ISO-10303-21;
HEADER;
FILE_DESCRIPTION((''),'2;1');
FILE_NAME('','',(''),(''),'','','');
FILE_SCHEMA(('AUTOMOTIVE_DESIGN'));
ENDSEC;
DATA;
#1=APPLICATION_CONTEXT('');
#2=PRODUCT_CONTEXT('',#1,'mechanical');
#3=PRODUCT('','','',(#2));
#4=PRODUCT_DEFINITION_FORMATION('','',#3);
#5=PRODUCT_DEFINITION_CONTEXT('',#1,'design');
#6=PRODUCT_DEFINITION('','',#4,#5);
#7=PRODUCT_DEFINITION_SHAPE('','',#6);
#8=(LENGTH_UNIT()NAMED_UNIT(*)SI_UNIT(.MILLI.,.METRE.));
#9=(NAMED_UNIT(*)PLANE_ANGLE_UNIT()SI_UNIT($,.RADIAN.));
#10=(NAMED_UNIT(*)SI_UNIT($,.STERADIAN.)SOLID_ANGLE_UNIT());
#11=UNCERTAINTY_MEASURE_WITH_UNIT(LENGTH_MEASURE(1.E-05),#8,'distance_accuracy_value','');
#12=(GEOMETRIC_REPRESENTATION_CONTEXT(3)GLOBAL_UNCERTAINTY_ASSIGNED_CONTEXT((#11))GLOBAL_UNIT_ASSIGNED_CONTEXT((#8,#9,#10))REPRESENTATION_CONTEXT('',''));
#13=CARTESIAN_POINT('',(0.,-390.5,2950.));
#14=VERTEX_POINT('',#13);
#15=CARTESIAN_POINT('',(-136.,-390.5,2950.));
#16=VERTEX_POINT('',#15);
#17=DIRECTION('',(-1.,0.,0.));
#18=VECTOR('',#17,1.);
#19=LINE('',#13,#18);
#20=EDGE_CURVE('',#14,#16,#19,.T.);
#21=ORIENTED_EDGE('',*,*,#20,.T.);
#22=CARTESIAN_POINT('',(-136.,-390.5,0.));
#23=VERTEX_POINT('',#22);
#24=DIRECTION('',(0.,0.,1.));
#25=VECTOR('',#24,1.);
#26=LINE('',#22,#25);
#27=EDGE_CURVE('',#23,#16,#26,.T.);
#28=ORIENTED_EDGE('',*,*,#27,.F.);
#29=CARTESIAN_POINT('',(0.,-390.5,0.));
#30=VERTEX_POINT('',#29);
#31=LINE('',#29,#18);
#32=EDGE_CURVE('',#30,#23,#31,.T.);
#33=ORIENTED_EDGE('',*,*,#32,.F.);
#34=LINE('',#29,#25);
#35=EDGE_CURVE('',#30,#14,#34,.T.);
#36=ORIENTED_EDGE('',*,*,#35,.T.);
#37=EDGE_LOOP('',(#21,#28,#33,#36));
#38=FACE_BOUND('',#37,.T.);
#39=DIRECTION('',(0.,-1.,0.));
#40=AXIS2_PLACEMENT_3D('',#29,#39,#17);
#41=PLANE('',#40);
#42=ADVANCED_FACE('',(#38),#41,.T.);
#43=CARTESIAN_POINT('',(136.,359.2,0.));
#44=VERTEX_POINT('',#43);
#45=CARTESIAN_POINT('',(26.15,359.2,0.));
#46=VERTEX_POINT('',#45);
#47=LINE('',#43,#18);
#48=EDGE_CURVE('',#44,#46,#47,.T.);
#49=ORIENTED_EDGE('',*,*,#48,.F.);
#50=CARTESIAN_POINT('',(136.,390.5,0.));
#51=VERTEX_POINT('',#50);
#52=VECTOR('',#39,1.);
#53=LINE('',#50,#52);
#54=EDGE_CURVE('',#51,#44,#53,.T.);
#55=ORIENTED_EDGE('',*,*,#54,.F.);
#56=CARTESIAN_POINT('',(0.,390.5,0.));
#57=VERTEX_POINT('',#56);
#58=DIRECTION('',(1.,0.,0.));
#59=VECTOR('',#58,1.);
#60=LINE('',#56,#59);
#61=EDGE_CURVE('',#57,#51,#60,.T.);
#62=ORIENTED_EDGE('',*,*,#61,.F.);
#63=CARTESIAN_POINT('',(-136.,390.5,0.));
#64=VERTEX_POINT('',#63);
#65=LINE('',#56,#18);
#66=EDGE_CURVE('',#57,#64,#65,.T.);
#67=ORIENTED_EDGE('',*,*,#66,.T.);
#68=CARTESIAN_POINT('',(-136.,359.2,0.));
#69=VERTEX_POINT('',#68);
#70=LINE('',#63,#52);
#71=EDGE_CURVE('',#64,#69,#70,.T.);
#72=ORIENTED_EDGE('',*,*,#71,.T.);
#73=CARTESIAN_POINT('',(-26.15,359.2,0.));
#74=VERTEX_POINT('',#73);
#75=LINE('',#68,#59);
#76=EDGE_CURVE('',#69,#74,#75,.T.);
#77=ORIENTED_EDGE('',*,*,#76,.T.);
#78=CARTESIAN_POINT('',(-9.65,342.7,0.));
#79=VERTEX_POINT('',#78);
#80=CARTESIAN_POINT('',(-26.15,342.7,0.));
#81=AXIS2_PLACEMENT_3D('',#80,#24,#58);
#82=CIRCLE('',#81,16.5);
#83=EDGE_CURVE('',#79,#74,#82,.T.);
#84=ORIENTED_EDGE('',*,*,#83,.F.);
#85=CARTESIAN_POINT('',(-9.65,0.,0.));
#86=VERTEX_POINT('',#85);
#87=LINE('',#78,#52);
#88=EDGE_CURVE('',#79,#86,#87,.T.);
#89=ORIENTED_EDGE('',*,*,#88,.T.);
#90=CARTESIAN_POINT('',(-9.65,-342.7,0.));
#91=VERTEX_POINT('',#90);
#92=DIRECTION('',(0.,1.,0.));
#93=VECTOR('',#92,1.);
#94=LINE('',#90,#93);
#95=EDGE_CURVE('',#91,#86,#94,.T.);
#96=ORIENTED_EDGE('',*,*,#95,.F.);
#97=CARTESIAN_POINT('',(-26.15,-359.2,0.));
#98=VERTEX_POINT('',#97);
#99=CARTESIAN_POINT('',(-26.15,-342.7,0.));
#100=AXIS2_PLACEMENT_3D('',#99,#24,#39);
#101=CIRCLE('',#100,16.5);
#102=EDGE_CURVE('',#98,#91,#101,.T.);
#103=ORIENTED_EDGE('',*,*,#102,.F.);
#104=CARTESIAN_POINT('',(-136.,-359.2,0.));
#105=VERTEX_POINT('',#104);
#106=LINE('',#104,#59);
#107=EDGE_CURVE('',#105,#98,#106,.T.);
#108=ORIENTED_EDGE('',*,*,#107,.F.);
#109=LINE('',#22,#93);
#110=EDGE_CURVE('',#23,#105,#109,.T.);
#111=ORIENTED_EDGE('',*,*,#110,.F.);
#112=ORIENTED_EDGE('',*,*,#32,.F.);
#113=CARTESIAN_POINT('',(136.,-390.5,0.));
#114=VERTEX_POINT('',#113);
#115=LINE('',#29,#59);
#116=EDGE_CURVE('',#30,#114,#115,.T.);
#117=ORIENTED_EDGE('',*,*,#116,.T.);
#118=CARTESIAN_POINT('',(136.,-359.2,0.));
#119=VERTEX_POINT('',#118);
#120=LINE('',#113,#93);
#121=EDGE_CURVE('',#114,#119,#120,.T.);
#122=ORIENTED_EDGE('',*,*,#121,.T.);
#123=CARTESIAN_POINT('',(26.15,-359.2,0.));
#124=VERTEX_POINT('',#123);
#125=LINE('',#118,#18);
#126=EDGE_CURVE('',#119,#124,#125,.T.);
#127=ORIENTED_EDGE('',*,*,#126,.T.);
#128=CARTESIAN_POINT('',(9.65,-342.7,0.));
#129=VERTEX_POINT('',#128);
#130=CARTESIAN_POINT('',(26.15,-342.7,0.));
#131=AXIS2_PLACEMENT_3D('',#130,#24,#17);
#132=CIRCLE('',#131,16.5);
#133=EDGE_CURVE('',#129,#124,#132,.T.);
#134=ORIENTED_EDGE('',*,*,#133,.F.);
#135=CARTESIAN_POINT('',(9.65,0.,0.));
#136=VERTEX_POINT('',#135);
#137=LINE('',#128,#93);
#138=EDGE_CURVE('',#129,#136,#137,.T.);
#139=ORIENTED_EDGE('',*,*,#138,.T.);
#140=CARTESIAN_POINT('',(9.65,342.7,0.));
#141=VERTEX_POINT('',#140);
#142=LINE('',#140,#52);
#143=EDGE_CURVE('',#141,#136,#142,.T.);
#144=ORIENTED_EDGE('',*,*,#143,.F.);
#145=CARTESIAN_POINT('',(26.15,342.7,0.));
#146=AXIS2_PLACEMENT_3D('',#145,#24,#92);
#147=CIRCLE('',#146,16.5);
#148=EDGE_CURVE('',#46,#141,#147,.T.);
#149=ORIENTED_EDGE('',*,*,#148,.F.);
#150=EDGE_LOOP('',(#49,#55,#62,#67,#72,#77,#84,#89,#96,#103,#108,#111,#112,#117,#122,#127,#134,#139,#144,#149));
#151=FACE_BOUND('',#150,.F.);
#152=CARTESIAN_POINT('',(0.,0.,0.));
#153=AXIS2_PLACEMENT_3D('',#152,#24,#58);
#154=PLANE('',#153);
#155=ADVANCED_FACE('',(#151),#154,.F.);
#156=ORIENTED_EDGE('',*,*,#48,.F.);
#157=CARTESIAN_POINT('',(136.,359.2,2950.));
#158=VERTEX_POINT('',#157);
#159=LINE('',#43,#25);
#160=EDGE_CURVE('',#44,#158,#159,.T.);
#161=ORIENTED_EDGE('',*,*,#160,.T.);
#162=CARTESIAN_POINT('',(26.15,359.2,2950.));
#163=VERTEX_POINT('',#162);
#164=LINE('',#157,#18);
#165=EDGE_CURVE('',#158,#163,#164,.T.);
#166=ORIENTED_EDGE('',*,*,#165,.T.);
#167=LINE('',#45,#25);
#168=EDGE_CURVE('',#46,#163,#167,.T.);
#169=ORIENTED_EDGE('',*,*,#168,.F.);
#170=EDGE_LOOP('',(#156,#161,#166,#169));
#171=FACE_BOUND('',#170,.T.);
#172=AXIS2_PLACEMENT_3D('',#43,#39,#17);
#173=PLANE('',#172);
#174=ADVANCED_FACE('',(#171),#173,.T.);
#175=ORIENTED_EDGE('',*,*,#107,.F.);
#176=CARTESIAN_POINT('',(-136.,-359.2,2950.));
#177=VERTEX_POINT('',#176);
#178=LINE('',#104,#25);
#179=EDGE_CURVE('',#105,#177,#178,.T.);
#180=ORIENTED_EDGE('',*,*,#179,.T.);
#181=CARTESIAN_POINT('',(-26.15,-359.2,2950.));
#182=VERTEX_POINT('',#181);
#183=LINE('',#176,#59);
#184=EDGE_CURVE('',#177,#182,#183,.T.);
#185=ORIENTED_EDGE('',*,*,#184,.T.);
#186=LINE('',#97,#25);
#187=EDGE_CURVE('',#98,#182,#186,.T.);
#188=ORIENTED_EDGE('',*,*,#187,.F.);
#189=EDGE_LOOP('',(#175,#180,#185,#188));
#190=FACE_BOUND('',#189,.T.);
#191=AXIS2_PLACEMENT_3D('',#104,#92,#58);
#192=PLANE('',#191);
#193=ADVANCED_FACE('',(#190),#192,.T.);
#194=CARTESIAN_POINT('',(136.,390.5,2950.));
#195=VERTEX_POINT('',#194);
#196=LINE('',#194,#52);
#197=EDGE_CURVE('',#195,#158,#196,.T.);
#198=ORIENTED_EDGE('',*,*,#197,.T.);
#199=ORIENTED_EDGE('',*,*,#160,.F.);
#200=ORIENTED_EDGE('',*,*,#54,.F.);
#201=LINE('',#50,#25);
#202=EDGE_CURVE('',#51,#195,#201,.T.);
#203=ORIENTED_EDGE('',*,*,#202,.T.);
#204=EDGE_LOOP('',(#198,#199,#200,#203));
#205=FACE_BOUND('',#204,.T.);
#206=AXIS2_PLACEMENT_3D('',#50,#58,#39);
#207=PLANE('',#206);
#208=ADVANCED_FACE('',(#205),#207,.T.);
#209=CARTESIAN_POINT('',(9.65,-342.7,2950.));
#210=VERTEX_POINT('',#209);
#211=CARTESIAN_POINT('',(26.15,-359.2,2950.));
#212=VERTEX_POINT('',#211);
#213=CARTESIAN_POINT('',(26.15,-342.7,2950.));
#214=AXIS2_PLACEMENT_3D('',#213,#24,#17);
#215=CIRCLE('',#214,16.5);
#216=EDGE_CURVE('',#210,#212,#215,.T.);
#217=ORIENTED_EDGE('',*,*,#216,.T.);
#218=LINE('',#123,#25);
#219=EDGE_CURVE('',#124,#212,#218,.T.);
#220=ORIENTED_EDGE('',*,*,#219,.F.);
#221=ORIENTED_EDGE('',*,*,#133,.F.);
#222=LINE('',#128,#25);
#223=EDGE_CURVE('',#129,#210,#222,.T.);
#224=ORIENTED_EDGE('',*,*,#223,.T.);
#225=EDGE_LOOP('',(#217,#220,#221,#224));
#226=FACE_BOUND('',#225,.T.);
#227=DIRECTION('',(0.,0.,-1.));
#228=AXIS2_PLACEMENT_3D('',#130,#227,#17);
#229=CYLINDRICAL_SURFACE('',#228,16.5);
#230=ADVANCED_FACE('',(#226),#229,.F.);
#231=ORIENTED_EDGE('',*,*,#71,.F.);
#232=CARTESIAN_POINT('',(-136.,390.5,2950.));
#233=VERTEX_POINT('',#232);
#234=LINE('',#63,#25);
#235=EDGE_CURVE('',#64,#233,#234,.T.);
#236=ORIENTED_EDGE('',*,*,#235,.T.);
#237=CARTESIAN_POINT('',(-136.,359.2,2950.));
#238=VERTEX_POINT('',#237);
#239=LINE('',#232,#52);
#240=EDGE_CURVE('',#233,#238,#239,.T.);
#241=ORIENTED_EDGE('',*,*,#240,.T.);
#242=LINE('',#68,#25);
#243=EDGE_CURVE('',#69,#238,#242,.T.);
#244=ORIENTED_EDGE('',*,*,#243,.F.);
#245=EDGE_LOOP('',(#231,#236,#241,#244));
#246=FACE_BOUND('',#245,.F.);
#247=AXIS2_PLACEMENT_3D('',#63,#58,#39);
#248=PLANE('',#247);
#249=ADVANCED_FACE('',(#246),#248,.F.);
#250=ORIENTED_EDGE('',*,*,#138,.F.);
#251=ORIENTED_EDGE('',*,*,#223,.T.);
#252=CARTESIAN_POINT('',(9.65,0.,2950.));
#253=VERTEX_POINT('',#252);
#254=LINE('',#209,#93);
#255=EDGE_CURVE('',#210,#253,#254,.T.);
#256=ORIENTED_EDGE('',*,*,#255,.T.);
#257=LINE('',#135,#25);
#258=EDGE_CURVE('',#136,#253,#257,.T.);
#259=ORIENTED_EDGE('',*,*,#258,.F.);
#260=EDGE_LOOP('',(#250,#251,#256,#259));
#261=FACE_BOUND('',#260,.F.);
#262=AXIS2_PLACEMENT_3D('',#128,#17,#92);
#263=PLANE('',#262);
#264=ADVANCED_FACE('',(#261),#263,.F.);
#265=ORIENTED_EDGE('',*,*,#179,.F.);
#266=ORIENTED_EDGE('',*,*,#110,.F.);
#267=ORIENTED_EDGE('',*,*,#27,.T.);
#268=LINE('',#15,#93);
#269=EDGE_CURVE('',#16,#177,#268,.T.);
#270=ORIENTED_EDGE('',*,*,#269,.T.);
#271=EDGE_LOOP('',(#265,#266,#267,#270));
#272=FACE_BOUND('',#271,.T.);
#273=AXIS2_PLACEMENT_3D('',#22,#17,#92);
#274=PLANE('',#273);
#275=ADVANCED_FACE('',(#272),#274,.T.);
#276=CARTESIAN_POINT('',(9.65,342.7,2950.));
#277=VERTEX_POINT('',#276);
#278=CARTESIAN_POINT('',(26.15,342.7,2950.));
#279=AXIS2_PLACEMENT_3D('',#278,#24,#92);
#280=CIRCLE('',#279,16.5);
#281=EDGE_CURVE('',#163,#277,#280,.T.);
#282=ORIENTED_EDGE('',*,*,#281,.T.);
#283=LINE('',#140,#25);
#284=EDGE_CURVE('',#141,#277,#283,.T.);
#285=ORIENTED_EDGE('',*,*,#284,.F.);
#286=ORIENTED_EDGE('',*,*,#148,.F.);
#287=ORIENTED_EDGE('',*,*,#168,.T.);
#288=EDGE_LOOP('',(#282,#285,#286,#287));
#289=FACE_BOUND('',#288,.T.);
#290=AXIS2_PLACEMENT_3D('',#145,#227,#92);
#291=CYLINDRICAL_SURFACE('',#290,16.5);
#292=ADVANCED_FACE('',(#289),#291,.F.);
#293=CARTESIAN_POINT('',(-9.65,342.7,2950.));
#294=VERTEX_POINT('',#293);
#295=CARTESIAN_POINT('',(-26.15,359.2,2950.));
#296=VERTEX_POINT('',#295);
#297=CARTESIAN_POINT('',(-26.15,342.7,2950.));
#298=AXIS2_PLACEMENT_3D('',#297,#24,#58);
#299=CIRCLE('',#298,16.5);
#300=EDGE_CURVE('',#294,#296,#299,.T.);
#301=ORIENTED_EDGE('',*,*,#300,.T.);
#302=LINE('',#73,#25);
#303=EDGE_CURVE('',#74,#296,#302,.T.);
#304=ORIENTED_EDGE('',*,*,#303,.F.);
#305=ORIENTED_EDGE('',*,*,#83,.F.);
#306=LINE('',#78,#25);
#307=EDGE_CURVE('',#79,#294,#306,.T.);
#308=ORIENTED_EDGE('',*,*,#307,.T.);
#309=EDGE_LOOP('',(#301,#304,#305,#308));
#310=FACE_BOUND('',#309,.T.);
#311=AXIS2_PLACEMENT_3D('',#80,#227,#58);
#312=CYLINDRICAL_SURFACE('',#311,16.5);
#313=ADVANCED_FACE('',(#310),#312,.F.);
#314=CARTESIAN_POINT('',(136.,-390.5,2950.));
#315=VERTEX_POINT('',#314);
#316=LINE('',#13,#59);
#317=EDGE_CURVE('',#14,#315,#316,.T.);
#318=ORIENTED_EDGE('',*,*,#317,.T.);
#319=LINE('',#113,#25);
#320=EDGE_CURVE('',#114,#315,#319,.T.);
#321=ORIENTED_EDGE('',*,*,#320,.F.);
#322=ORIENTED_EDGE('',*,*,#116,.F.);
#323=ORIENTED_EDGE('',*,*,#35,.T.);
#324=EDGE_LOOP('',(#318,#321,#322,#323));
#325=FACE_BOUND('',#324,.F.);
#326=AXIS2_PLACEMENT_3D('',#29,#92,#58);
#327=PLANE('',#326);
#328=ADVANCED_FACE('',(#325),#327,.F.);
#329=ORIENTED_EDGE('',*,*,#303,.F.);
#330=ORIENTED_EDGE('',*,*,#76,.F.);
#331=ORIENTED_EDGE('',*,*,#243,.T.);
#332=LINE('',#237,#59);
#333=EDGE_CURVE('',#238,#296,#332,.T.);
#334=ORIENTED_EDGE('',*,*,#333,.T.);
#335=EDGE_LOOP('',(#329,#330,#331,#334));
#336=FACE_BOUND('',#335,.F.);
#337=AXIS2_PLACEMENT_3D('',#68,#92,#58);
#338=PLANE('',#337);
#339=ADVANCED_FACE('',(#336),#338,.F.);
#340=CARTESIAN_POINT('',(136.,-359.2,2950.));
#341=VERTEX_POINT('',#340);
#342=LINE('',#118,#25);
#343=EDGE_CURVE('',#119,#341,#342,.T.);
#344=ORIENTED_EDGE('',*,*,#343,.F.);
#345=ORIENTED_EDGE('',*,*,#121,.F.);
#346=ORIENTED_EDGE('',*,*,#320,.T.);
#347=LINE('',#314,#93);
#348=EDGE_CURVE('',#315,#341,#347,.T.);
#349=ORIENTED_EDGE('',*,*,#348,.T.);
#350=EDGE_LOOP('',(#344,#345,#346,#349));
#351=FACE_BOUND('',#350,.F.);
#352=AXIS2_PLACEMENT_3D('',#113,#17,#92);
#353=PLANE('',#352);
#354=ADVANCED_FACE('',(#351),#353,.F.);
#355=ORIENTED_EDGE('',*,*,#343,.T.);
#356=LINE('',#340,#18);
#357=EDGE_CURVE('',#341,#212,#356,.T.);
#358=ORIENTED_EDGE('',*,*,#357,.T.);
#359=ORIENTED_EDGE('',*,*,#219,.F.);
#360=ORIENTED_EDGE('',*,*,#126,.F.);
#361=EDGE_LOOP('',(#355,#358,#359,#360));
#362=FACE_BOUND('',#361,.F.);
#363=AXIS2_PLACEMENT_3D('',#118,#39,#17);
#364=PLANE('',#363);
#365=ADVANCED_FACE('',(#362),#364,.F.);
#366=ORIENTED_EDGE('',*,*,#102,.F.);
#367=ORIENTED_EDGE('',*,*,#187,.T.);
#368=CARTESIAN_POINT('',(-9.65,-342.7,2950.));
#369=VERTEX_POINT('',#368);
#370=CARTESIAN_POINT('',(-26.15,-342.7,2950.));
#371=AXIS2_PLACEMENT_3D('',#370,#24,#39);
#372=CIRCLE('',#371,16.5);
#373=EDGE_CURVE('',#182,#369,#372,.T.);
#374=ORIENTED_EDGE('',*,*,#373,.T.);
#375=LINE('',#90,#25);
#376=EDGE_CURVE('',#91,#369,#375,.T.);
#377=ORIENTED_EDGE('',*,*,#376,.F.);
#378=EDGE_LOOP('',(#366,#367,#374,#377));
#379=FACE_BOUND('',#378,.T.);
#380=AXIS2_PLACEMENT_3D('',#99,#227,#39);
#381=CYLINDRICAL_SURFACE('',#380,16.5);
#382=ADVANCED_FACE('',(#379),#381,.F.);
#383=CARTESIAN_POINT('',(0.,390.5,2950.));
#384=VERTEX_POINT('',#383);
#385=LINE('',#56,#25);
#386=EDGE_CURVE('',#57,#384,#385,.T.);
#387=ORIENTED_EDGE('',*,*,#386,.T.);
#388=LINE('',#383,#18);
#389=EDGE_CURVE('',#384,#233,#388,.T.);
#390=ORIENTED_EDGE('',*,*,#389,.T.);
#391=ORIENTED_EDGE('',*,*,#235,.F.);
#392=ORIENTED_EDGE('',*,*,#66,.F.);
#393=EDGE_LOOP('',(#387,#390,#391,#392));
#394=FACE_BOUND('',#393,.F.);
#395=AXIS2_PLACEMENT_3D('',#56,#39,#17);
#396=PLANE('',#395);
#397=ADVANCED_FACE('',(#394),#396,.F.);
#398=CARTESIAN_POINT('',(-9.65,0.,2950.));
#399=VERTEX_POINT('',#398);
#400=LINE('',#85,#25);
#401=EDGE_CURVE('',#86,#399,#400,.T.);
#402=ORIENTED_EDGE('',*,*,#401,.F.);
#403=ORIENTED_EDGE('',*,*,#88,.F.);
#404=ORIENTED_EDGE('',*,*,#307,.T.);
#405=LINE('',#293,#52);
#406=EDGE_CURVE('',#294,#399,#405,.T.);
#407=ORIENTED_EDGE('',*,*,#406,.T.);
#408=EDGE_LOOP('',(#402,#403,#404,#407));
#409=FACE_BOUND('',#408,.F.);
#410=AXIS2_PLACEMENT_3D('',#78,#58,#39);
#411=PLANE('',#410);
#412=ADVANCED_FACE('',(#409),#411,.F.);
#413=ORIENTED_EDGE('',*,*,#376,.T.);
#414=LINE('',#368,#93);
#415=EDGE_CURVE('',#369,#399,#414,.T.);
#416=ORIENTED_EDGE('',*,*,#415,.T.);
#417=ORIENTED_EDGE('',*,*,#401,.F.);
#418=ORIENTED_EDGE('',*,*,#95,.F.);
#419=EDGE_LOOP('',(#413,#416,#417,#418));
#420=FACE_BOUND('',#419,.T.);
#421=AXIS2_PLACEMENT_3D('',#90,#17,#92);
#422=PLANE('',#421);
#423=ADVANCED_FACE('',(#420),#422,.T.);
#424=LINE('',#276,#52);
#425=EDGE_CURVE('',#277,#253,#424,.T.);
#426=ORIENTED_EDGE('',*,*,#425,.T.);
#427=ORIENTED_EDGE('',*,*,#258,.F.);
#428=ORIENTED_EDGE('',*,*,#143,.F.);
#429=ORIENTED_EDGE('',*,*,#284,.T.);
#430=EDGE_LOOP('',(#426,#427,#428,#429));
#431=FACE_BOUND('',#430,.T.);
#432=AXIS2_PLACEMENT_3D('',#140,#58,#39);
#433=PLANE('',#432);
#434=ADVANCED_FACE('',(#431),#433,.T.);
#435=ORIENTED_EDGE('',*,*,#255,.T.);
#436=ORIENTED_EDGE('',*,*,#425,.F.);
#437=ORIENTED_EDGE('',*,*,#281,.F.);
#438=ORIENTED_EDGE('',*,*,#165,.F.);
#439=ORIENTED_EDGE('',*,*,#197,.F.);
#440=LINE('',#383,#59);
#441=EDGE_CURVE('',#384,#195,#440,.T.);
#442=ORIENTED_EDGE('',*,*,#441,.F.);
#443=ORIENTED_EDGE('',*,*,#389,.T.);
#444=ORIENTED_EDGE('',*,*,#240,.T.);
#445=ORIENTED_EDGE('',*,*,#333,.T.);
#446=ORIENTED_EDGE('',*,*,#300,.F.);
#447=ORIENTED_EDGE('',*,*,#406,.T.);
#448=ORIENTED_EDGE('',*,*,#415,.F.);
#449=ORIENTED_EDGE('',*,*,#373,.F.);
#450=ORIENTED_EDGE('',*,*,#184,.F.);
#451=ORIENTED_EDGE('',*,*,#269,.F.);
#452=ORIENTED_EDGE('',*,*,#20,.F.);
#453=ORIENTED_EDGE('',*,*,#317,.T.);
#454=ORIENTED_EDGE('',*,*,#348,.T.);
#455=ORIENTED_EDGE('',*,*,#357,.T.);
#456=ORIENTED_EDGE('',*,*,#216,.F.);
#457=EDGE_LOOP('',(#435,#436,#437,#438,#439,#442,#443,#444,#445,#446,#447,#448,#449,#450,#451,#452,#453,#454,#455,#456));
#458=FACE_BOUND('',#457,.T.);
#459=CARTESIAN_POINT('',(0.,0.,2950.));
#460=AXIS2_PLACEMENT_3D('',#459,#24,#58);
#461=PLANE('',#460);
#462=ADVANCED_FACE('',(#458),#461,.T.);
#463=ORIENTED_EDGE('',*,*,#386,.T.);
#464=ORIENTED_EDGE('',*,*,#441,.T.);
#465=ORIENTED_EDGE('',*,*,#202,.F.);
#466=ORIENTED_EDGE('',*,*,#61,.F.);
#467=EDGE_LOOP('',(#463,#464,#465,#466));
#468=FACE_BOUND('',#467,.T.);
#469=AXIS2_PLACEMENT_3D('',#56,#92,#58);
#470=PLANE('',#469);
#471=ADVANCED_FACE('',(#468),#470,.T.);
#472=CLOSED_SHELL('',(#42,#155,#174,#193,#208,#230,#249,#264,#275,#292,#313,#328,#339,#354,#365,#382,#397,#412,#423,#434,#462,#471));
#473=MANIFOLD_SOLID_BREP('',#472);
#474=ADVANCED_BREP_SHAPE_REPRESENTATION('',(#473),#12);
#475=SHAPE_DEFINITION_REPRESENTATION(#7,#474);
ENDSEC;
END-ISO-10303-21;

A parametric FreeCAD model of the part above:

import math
import FreeCAD as App
import Part
import Sketcher

V = App.Vector
Q = App.Units.Quantity

doc = App.newDocument("Part")
body = doc.addObject("PartDesign::Body", "Body")

# Sketch on XY plane
sketch1 = doc.addObject("Sketcher::SketchObject", "Sketch")
body.addObject(sketch1)
sketch1.AttachmentSupport = (doc.XY_Plane, [""])
sketch1.MapMode = "FlatFace"
sketch1.addGeometry([
    Part.LineSegment(V(-136, -359.2, 0), V(-136, -390.5, 0)),  # 0
    Part.LineSegment(V(-136, -390.5, 0), V(136, -390.5, 0)),  # 1
    Part.LineSegment(V(136, -390.5, 0), V(136, -359.2, 0)),  # 2
    Part.LineSegment(V(136, -359.2, 0), V(26.15, -359.2, 0)),  # 3
    Part.ArcOfCircle(Part.Circle(V(26.15, -342.7, 0), V(0, 0, 1), 16.5), math.radians(180), math.radians(270)),  # 4
    Part.LineSegment(V(9.65, -342.7, 0), V(9.65, 342.7, 0)),  # 5
    Part.ArcOfCircle(Part.Circle(V(26.15, 342.7, 0), V(0, 0, 1), 16.5), math.radians(90), math.radians(180)),  # 6
    Part.LineSegment(V(26.15, 359.2, 0), V(136, 359.2, 0)),  # 7
    Part.LineSegment(V(136, 359.2, 0), V(136, 390.5, 0)),  # 8
    Part.LineSegment(V(136, 390.5, 0), V(-136, 390.5, 0)),  # 9
    Part.LineSegment(V(-136, 390.5, 0), V(-136, 359.2, 0)),  # 10
    Part.LineSegment(V(-136, 359.2, 0), V(-26.15, 359.2, 0)),  # 11
    Part.ArcOfCircle(Part.Circle(V(-26.15, 342.7, 0), V(0, 0, 1), 16.5), math.radians(0), math.radians(90)),  # 12
    Part.LineSegment(V(-9.65, 342.7, 0), V(-9.65, -342.7, 0)),  # 13
    Part.ArcOfCircle(Part.Circle(V(-26.15, -342.7, 0), V(0, 0, 1), 16.5), math.radians(-90), math.radians(0)),  # 14
    Part.LineSegment(V(-26.15, -359.2, 0), V(-136, -359.2, 0)),  # 15
], False)
sketch1.addConstraint([
    Sketcher.Constraint("Coincident", 0, 2, 1, 1),
    Sketcher.Constraint("Coincident", 1, 2, 2, 1),
    Sketcher.Constraint("Coincident", 2, 2, 3, 1),
    Sketcher.Constraint("Tangent", 3, 2, 4, 2),
    Sketcher.Constraint("Tangent", 4, 1, 5, 1),
    Sketcher.Constraint("Tangent", 5, 2, 6, 2),
    Sketcher.Constraint("Tangent", 6, 1, 7, 1),
    Sketcher.Constraint("Coincident", 7, 2, 8, 1),
    Sketcher.Constraint("Coincident", 8, 2, 9, 1),
    Sketcher.Constraint("Coincident", 9, 2, 10, 1),
    Sketcher.Constraint("Coincident", 10, 2, 11, 1),
    Sketcher.Constraint("Tangent", 11, 2, 12, 2),
    Sketcher.Constraint("Tangent", 12, 1, 13, 1),
    Sketcher.Constraint("Tangent", 13, 2, 14, 2),
    Sketcher.Constraint("Tangent", 14, 1, 15, 1),
    Sketcher.Constraint("Coincident", 15, 2, 0, 1),
    Sketcher.Constraint("Vertical", 0),
    Sketcher.Constraint("Horizontal", 1),
    Sketcher.Constraint("Vertical", 2),
    Sketcher.Constraint("Horizontal", 3),
    Sketcher.Constraint("Vertical", 5),
    Sketcher.Constraint("Horizontal", 7),
    Sketcher.Constraint("Vertical", 8),
    Sketcher.Constraint("Horizontal", 9),
    Sketcher.Constraint("Vertical", 10),
    Sketcher.Constraint("Horizontal", 11),
    Sketcher.Constraint("Vertical", 13),
    Sketcher.Constraint("Horizontal", 15),
    Sketcher.Constraint("Equal", 4, 6),
    Sketcher.Constraint("Equal", 6, 12),
    Sketcher.Constraint("Equal", 12, 14),
    Sketcher.Constraint("Symmetric", 4, 3, 12, 3, -1, 1),
    Sketcher.Constraint("Symmetric", 0, 2, 8, 2, -1, 1),
    Sketcher.Constraint("Symmetric", 7, 2, 10, 2, -2),
    Sketcher.Constraint("Symmetric", 2, 2, 15, 2, -2),
    Sketcher.Constraint("Radius", 4, Q("16.5 mm")),
    Sketcher.Constraint("DistanceY", 0, 2, 0, 1, Q("31.3 mm")),
    Sketcher.Constraint("DistanceX", 0, 2, -1, 1, Q("136 mm")),
    Sketcher.Constraint("DistanceY", 0, 2, -1, 1, Q("390.5 mm")),
    Sketcher.Constraint("DistanceX", -1, 1, 4, 1, Q("9.65 mm")),
])
pad1 = doc.addObject("PartDesign::Pad", "Pad")
body.addObject(pad1)
pad1.Profile = sketch1
pad1.Length = 2950

doc.recompute()
